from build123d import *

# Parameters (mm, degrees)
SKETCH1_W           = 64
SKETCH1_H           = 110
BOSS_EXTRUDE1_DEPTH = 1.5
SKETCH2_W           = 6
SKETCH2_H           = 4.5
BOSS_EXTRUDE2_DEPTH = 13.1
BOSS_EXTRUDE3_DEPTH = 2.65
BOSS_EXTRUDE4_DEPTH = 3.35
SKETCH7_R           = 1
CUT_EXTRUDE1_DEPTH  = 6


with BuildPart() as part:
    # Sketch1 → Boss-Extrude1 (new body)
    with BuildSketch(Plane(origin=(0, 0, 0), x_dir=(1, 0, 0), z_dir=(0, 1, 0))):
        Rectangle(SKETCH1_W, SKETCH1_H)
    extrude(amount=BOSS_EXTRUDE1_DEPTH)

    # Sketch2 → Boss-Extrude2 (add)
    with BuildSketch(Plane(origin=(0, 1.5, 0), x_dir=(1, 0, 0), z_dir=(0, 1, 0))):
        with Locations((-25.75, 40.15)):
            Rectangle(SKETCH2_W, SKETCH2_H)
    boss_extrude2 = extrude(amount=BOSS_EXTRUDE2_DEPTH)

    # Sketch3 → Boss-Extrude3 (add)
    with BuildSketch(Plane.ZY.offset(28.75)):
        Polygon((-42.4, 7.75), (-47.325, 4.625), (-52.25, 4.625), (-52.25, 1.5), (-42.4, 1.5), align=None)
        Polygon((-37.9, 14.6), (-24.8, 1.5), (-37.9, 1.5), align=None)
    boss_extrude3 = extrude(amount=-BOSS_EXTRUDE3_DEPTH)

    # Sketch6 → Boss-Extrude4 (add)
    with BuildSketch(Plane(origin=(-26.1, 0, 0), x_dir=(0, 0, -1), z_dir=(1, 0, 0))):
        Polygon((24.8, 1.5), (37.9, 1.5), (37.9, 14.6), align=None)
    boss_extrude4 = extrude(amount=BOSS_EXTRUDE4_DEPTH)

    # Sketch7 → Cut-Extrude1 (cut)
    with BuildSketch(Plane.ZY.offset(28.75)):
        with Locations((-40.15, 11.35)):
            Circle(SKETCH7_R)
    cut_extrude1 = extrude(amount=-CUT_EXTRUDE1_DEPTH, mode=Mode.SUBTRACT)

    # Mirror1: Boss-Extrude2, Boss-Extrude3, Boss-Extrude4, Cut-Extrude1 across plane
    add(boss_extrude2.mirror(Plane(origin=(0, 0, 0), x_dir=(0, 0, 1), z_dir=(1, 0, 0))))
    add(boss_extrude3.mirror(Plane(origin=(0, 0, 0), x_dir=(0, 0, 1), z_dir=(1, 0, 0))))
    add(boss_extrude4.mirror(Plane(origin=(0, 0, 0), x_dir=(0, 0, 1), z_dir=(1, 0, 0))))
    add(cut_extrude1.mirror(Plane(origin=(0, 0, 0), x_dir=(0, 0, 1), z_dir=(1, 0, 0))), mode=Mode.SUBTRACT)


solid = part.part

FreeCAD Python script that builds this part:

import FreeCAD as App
import Part
import Sketcher

doc = App.newDocument("Part")
body = doc.addObject("PartDesign::Body", "Body")

sketch1 = doc.addObject("Sketcher::SketchObject", "Sketch")
body.addObject(sketch1)
sketch1.AttachmentSupport = (doc.XZ_Plane, [""])
sketch1.MapMode = "FlatFace"
sketch1.addGeometry([
    Part.LineSegment(App.Vector(-32, -55, 0), App.Vector(-32, 55, 0)),
    Part.LineSegment(App.Vector(-32, 55, 0), App.Vector(32, 55, 0)),
    Part.LineSegment(App.Vector(32, 55, 0), App.Vector(32, -55, 0)),
    Part.LineSegment(App.Vector(32, -55, 0), App.Vector(-32, -55, 0)),
], False)
sketch1.addConstraint([
    Sketcher.Constraint("Coincident", 0, 2, 1, 1),
    Sketcher.Constraint("Coincident", 1, 2, 2, 1),
    Sketcher.Constraint("Coincident", 2, 2, 3, 1),
    Sketcher.Constraint("Coincident", 3, 2, 0, 1),
    Sketcher.Constraint("Vertical", 0),
    Sketcher.Constraint("Horizontal", 1),
    Sketcher.Constraint("Vertical", 2),
    Sketcher.Constraint("Horizontal", 3),
    Sketcher.Constraint("Symmetric", 0, 2, 2, 2, -1, 1),
    Sketcher.Constraint("DistanceX", 1, 1, 1, 2, 64.0),
    Sketcher.Constraint("DistanceY", 0, 1, 0, 2, 110.0),
])
pad1 = doc.addObject("PartDesign::Pad", "Pad")
body.addObject(pad1)
pad1.Profile = sketch1
pad1.Length = 1.5
pad1.Reversed = True

sketch2 = doc.addObject("Sketcher::SketchObject", "Sketch001")
body.addObject(sketch2)
sketch2.AttachmentSupport = (doc.XZ_Plane, [""])
sketch2.MapMode = "FlatFace"
sketch2.AttachmentOffset = App.Placement(App.Vector(0, 0, -1.5), App.Rotation())
sketch2.addGeometry([
    Part.LineSegment(App.Vector(-28.75, -42.4, 0), App.Vector(-28.75, -37.9, 0)),
    Part.LineSegment(App.Vector(-28.75, -37.9, 0), App.Vector(-22.75, -37.9, 0)),
    Part.LineSegment(App.Vector(-22.75, -37.9, 0), App.Vector(-22.75, -42.4, 0)),
    Part.LineSegment(App.Vector(-22.75, -42.4, 0), App.Vector(-28.75, -42.4, 0)),
], False)
sketch2.addConstraint([
    Sketcher.Constraint("Coincident", 0, 2, 1, 1),
    Sketcher.Constraint("Coincident", 1, 2, 2, 1),
    Sketcher.Constraint("Coincident", 2, 2, 3, 1),
    Sketcher.Constraint("Coincident", 3, 2, 0, 1),
    Sketcher.Constraint("Vertical", 0),
    Sketcher.Constraint("Horizontal", 1),
    Sketcher.Constraint("Vertical", 2),
    Sketcher.Constraint("Horizontal", 3),
    Sketcher.Constraint("DistanceX", 1, 1, 1, 2, 6.0),
    Sketcher.Constraint("DistanceY", 0, 1, 0, 2, 4.5),
    Sketcher.Constraint("DistanceY", 0, 2, -1, 1, 37.9),
    Sketcher.Constraint("DistanceX", 0, 2, -1, 1, 28.75),
])
pad2 = doc.addObject("PartDesign::Pad", "Pad001")
body.addObject(pad2)
pad2.Profile = sketch2
pad2.Length = 13.1
pad2.Reversed = True

sketch3 = doc.addObject("Sketcher::SketchObject", "Sketch002")
body.addObject(sketch3)
sketch3.AttachmentSupport = (doc.YZ_Plane, [""])
sketch3.MapMode = "FlatFace"
sketch3.AttachmentOffset = App.Placement(App.Vector(0, 0, -28.75), App.Rotation())
sketch3.addGeometry([
    Part.LineSegment(App.Vector(7.75, -42.4, 0), App.Vector(4.625, -47.325, 0)),
    Part.LineSegment(App.Vector(4.625, -47.325, 0), App.Vector(4.625, -52.25, 0)),
    Part.LineSegment(App.Vector(4.625, -52.25, 0), App.Vector(1.5, -52.25, 0)),
    Part.LineSegment(App.Vector(1.5, -52.25, 0), App.Vector(1.5, -42.4, 0)),
    Part.LineSegment(App.Vector(1.5, -42.4, 0), App.Vector(7.75, -42.4, 0)),
    Part.LineSegment(App.Vector(1.5, -24.8, 0), App.Vector(14.6, -37.9, 0)),
    Part.LineSegment(App.Vector(14.6, -37.9, 0), App.Vector(1.5, -37.9, 0)),
    Part.LineSegment(App.Vector(1.5, -37.9, 0), App.Vector(1.5, -24.8, 0)),
], False)
sketch3.addConstraint([
    Sketcher.Constraint("Coincident", 0, 2, 1, 1),
    Sketcher.Constraint("Coincident", 1, 2, 2, 1),
    Sketcher.Constraint("Coincident", 2, 2, 3, 1),
    Sketcher.Constraint("Coincident", 3, 2, 4, 1),
    Sketcher.Constraint("Coincident", 4, 2, 0, 1),
    Sketcher.Constraint("Coincident", 5, 2, 6, 1),
    Sketcher.Constraint("Coincident", 6, 2, 7, 1),
    Sketcher.Constraint("Coincident", 7, 2, 5, 1),
    Sketcher.Constraint("Vertical", 1),
    Sketcher.Constraint("Horizontal", 2),
    Sketcher.Constraint("Vertical", 3),
    Sketcher.Constraint("Horizontal", 4),
    Sketcher.Constraint("Horizontal", 6),
    Sketcher.Constraint("Vertical", 7),
    Sketcher.Constraint("Vertical", 3, 2, 6, 2),
    Sketcher.Constraint("Equal", 6, 7),
    Sketcher.Constraint("DistanceX", 6, 2, 6, 1, 13.1),
    Sketcher.Constraint("DistanceX", 4, 1, 4, 2, 6.25),
    Sketcher.Constraint("DistanceY", 3, 1, 3, 2, 9.85),
    Sketcher.Constraint("DistanceX", -1, 1, 2, 2, 1.5),
    Sketcher.Constraint("DistanceY", 3, 2, -1, 1, 42.4),
    Sketcher.Constraint("DistanceY", 5, 2, -1, 1, 37.9),
    Sketcher.Constraint("DistanceX", 2, 2, 2, 1, 3.125),
    Sketcher.Constraint("DistanceY", 1, 2, 1, 1, 4.925),
])
pad3 = doc.addObject("PartDesign::Pad", "Pad002")
body.addObject(pad3)
pad3.Profile = sketch3
pad3.Length = 2.65

sketch4 = doc.addObject("Sketcher::SketchObject", "Sketch003")
body.addObject(sketch4)
sketch4.AttachmentSupport = (doc.YZ_Plane, [""])
sketch4.MapMode = "FlatFace"
sketch4.AttachmentOffset = App.Placement(App.Vector(0, 0, -26.1), App.Rotation())
sketch4.addGeometry([
    Part.LineSegment(App.Vector(1.5, -24.8, 0), App.Vector(1.5, -37.9, 0)),
    Part.LineSegment(App.Vector(1.5, -37.9, 0), App.Vector(14.6, -37.9, 0)),
    Part.LineSegment(App.Vector(14.6, -37.9, 0), App.Vector(1.5, -24.8, 0)),
], False)
sketch4.addConstraint([
    Sketcher.Constraint("Coincident", 0, 2, 1, 1),
    Sketcher.Constraint("Coincident", 1, 2, 2, 1),
    Sketcher.Constraint("Coincident", 2, 2, 0, 1),
    Sketcher.Constraint("Vertical", 0),
    Sketcher.Constraint("Horizontal", 1),
    Sketcher.Constraint("Equal", 1, 0),
    Sketcher.Constraint("DistanceX", 1, 1, 1, 2, 13.1),
    Sketcher.Constraint("DistanceX", -1, 1, 0, 2, 1.5),
    Sketcher.Constraint("DistanceY", 0, 2, -1, 1, 37.9),
])
pad4 = doc.addObject("PartDesign::Pad", "Pad003")
body.addObject(pad4)
pad4.Profile = sketch4
pad4.Length = 3.35

sketch5 = doc.addObject("Sketcher::SketchObject", "Sketch004")
body.addObject(sketch5)
sketch5.AttachmentSupport = (doc.YZ_Plane, [""])
sketch5.MapMode = "FlatFace"
sketch5.AttachmentOffset = App.Placement(App.Vector(0, 0, -28.75), App.Rotation())
sketch5.addGeometry(Part.Circle(App.Vector(11.35, -40.15, 0), App.Vector(0, 0, 1), 1), False)
sketch5.addConstraint([
    Sketcher.Constraint("Diameter", 0, 2.0),
    Sketcher.Constraint("DistanceX", -1, 1, 0, 3, 11.35),
    Sketcher.Constraint("DistanceY", 0, 3, -1, 1, 40.15),
])
pocket1 = doc.addObject("PartDesign::Pocket", "Pocket")
body.addObject(pocket1)
pocket1.Profile = sketch5
pocket1.Length = 6
pocket1.Reversed = True
doc.recompute()

mirrored = doc.addObject("PartDesign::Mirrored", "Mirrored")
body.addObject(mirrored)
mirrored.Originals = [pad2, pad3, pad4, pocket1]
mirrored.MirrorPlane = (doc.YZ_Plane, [""])
body.Tip = mirrored

doc.recompute()
